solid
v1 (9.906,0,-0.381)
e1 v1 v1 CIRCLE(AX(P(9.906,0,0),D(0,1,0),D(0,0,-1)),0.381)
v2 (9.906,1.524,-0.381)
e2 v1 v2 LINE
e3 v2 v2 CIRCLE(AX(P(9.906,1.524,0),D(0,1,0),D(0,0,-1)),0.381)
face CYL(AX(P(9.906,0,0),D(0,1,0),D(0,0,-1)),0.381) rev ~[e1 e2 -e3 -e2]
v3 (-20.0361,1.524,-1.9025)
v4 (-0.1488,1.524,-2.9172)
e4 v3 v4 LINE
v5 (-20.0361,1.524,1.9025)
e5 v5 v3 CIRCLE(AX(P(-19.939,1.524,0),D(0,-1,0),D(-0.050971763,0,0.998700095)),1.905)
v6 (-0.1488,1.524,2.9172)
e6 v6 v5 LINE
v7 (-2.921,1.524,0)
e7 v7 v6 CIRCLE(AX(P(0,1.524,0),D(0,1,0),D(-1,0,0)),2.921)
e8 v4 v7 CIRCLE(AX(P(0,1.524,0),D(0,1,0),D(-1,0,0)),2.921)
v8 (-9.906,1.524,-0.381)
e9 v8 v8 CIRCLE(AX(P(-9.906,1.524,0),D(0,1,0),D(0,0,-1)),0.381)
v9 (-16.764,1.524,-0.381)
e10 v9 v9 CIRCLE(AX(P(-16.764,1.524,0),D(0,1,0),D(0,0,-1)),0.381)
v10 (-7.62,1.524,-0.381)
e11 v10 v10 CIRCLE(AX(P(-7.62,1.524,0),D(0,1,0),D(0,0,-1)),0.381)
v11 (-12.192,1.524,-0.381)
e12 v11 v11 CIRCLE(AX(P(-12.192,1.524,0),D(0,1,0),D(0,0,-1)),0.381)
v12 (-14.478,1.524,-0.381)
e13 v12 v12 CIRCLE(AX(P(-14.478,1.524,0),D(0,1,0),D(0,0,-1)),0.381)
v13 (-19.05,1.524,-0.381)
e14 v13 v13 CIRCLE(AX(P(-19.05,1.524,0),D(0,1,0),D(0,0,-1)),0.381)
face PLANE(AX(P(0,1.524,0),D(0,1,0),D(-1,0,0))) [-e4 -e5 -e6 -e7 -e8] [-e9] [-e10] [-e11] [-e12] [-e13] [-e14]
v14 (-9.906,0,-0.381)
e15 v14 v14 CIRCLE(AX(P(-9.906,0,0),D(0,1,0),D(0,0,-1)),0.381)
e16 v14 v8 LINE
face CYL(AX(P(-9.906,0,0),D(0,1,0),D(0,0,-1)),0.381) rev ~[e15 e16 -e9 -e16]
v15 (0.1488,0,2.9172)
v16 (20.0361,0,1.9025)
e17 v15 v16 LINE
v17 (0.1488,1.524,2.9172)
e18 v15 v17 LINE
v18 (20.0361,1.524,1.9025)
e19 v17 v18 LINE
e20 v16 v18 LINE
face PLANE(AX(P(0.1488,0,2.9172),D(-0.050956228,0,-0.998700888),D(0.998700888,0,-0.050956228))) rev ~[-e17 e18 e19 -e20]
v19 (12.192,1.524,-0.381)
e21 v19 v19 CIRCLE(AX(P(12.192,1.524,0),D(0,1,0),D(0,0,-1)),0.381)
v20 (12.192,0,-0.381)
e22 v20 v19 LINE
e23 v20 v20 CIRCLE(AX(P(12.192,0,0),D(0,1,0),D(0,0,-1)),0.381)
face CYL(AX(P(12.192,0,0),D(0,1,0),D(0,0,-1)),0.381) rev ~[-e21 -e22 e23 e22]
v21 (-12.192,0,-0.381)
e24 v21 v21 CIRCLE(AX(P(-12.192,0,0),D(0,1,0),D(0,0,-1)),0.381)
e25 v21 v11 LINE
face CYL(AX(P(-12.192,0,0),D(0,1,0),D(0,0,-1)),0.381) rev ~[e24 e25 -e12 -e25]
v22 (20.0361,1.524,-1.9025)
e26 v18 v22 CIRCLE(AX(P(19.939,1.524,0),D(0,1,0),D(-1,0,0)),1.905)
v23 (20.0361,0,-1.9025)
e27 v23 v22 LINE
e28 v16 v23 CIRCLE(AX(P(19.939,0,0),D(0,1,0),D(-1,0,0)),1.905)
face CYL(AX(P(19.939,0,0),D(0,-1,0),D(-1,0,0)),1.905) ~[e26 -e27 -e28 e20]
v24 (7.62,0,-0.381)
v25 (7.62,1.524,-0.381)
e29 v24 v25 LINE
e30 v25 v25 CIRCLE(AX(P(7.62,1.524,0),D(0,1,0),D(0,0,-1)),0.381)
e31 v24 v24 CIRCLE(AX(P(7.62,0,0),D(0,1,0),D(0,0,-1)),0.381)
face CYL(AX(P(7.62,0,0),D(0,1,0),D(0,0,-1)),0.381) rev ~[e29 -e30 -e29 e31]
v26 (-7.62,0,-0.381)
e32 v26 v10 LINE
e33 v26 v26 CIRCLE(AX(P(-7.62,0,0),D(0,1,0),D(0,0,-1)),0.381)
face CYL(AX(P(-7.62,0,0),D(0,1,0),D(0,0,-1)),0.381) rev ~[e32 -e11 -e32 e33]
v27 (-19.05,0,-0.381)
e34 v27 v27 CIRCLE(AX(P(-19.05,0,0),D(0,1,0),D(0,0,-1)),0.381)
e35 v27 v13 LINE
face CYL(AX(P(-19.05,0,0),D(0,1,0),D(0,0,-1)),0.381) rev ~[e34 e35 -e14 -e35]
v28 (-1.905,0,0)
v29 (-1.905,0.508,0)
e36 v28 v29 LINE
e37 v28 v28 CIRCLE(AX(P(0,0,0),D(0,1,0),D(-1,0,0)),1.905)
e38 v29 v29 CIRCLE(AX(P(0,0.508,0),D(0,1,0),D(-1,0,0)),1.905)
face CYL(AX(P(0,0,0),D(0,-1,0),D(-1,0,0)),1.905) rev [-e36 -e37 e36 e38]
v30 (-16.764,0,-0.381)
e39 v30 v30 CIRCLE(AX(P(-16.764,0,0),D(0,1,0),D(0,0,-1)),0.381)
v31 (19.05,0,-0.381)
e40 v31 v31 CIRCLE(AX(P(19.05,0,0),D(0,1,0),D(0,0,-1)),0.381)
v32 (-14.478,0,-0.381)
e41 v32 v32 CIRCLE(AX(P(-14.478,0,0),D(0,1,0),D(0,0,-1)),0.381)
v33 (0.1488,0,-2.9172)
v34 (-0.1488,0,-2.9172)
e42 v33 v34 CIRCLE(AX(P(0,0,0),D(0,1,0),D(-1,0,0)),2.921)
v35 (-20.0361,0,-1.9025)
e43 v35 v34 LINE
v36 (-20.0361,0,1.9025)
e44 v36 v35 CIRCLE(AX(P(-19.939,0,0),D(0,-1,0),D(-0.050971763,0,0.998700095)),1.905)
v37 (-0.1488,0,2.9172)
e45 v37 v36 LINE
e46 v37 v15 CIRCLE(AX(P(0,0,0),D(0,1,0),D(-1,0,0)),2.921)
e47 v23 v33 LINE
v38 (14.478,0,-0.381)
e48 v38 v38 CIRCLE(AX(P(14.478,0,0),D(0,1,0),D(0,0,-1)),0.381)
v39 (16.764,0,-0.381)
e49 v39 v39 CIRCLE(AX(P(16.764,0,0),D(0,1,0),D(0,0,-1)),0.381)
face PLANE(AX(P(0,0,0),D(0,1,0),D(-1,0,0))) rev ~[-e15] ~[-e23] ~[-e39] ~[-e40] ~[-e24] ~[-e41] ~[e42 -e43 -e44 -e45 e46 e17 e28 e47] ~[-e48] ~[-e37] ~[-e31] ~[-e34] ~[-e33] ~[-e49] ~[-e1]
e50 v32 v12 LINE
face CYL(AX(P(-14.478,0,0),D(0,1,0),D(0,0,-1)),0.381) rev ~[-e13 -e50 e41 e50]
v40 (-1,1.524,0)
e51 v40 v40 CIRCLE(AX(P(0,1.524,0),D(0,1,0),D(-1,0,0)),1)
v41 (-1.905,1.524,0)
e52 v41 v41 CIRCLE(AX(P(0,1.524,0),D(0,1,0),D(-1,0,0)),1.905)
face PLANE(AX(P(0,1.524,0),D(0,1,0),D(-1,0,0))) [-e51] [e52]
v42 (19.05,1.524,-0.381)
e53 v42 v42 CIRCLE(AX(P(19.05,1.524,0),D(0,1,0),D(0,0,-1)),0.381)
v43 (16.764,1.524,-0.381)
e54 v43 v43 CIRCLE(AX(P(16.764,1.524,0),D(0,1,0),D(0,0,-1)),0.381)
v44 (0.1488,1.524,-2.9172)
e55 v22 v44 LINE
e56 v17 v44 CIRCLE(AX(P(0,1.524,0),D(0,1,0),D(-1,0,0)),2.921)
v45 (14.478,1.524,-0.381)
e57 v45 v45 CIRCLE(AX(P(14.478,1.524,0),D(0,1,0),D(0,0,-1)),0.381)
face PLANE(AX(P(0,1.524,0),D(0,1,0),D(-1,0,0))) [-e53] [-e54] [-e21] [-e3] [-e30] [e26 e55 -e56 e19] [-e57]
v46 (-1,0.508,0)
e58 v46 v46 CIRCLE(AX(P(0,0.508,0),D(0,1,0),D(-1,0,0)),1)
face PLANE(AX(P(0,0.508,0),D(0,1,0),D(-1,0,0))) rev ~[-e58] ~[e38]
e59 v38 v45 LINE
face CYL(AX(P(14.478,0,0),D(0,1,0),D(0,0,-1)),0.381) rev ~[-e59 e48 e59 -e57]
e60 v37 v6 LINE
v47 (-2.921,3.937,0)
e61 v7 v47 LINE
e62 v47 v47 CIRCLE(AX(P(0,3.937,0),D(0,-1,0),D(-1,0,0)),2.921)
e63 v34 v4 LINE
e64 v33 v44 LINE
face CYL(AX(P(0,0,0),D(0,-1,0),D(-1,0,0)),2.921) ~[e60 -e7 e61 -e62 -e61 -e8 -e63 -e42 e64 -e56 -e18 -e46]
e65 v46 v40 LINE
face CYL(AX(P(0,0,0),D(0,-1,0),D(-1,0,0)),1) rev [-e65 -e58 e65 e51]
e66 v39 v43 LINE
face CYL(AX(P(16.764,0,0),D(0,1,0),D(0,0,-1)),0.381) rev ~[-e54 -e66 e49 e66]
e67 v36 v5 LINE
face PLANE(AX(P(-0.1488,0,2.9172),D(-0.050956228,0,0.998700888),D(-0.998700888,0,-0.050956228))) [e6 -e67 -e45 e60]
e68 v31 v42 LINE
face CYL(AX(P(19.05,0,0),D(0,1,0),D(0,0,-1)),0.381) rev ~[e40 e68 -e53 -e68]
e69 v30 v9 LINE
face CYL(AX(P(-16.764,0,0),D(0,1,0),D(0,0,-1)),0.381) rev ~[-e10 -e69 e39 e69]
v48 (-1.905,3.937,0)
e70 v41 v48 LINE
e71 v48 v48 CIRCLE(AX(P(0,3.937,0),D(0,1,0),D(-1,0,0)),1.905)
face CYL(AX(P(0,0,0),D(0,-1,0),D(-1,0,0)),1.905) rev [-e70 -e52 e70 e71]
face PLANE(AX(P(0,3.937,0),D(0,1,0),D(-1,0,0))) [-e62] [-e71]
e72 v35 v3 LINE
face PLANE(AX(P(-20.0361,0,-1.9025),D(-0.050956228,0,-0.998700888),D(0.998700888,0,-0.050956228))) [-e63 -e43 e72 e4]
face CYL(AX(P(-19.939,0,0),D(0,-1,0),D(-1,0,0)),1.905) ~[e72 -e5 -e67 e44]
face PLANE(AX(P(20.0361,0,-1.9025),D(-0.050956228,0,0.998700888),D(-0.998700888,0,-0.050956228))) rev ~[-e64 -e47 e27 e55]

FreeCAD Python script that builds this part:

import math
import FreeCAD as App
import Part
import Sketcher
Q = App.Units.Quantity

doc = App.newDocument("Part")
body = doc.addObject("PartDesign::Body", "Body")

# Sketch on XZ plane
sketch1 = body.newObject("Sketcher::SketchObject", "Sketch")
sketch1.AttachmentSupport = (doc.getObject("XZ_Plane"), [""])
sketch1.MapMode = "FlatFace"
sketch1.addGeometry(Part.ArcOfCircle(Part.Circle(App.Vector(0, 0, 0), App.Vector(0, 0, 1), 2.92), math.radians(-92.92), math.radians(-87.08)), False)
sketch1.addGeometry(Part.LineSegment(App.Vector(-0.15, -2.92, 0), App.Vector(-20.04, -1.9, 0)), False)
sketch1.addGeometry(Part.ArcOfCircle(Part.Circle(App.Vector(-19.94, 0, 0), App.Vector(0, 0, 1), 1.91), math.radians(93), math.radians(267)), False)
sketch1.addGeometry(Part.LineSegment(App.Vector(-20.04, 1.9, 0), App.Vector(-0.15, 2.92, 0)), False)
sketch1.addGeometry(Part.ArcOfCircle(Part.Circle(App.Vector(0, 0, 0), App.Vector(0, 0, 1), 2.92), math.radians(87.08), math.radians(92.92)), False)
sketch1.addGeometry(Part.LineSegment(App.Vector(0.15, 2.92, 0), App.Vector(20.04, 1.9, 0)), False)
sketch1.addGeometry(Part.ArcOfCircle(Part.Circle(App.Vector(19.94, 0, 0), App.Vector(0, 0, 1), 1.91), math.radians(-87), math.radians(87)), False)
sketch1.addGeometry(Part.LineSegment(App.Vector(20.04, -1.9, 0), App.Vector(0.15, -2.92, 0)), False)
sketch1.addGeometry(Part.Circle(App.Vector(0, 0, 0), App.Vector(0, 0, 1), 1), False)
sketch1.addConstraint(Sketcher.Constraint("Tangent", 0, 1, 1, 1))
sketch1.addConstraint(Sketcher.Constraint("Tangent", 1, 2, 2, 2))
sketch1.addConstraint(Sketcher.Constraint("Tangent", 2, 1, 3, 1))
sketch1.addConstraint(Sketcher.Constraint("Tangent", 3, 2, 4, 2))
sketch1.addConstraint(Sketcher.Constraint("Tangent", 4, 1, 5, 1))
sketch1.addConstraint(Sketcher.Constraint("Tangent", 5, 2, 6, 2))
sketch1.addConstraint(Sketcher.Constraint("Tangent", 6, 1, 7, 1))
sketch1.addConstraint(Sketcher.Constraint("Tangent", 7, 2, 0, 2))
sketch1.addConstraint(Sketcher.Constraint("Coincident", 0, 3, -1, 1))
sketch1.addConstraint(Sketcher.Constraint("Coincident", 4, 3, -1, 1))
sketch1.addConstraint(Sketcher.Constraint("Coincident", 8, 3, -1, 1))
sketch1.addConstraint(Sketcher.Constraint("Equal", 0, 4))
sketch1.addConstraint(Sketcher.Constraint("Equal", 2, 6))
sketch1.addConstraint(Sketcher.Constraint("Symmetric", 2, 3, 6, 3, -1, 1))
sketch1.addConstraint(Sketcher.Constraint("PointOnObject", 2, 3, -1))
sketch1.addConstraint(Sketcher.Constraint("Radius", 0, Q("0.115 in")))
sketch1.addConstraint(Sketcher.Constraint("Radius", 2, Q("0.075 in")))
sketch1.addConstraint(Sketcher.Constraint("Diameter", 8, 2.0))
sketch1.addConstraint(Sketcher.Constraint("Angle", 1, Q("177.0792 deg")))
pad1 = body.newObject("PartDesign::Pad", "Pad")
pad1.Profile = sketch1
pad1.Length = Q("0.06 in")
pad1.Reversed = True

# Sketch on XZ plane
sketch2 = body.newObject("Sketcher::SketchObject", "Sketch001")
sketch2.AttachmentSupport = (doc.getObject("XZ_Plane"), [""])
sketch2.MapMode = "FlatFace"
sketch2.addGeometry(Part.Circle(App.Vector(0, 0, 0), App.Vector(0, 0, 1), 2.9), False)
sketch2.addGeometry(Part.Circle(App.Vector(0, 0, 0), App.Vector(0, 0, 1), 1.9), False)
sketch2.addConstraint(Sketcher.Constraint("Coincident", 0, 3, -1, 1))
sketch2.addConstraint(Sketcher.Constraint("Coincident", 1, 3, -1, 1))
sketch2.addConstraint(Sketcher.Constraint("Diameter", 0, Q("0.23 in")))
sketch2.addConstraint(Sketcher.Constraint("Diameter", 1, Q("0.15 in")))
pad2 = body.newObject("PartDesign::Pad", "Pad001")
pad2.Profile = sketch2
pad2.Length = Q("0.155 in")
pad2.Reversed = True

# Sketch on XZ plane
sketch3 = body.newObject("Sketcher::SketchObject", "Sketch002")
sketch3.AttachmentSupport = (doc.getObject("XZ_Plane"), [""])
sketch3.MapMode = "FlatFace"
sketch3.addGeometry(Part.Circle(App.Vector(-19.05, 0, 0), App.Vector(0, 0, 1), 0.38), False)
sketch3.addGeometry(Part.Circle(App.Vector(-16.76, 0, 0), App.Vector(0, 0, 1), 0.38), False)
sketch3.addGeometry(Part.Circle(App.Vector(-14.48, 0, 0), App.Vector(0, 0, 1), 0.38), False)
sketch3.addGeometry(Part.Circle(App.Vector(-12.19, 0, 0), App.Vector(0, 0, 1), 0.38), False)
sketch3.addGeometry(Part.Circle(App.Vector(-9.91, 0, 0), App.Vector(0, 0, 1), 0.38), False)
sketch3.addGeometry(Part.Circle(App.Vector(-7.62, 0, 0), App.Vector(0, 0, 1), 0.38), False)
sketch3.addGeometry(Part.Circle(App.Vector(7.62, 0, 0), App.Vector(0, 0, 1), 0.38), False)
sketch3.addGeometry(Part.Circle(App.Vector(9.91, 0, 0), App.Vector(0, 0, 1), 0.38), False)
sketch3.addGeometry(Part.Circle(App.Vector(12.19, 0, 0), App.Vector(0, 0, 1), 0.38), False)
sketch3.addGeometry(Part.Circle(App.Vector(14.48, 0, 0), App.Vector(0, 0, 1), 0.38), False)
sketch3.addGeometry(Part.Circle(App.Vector(16.76, 0, 0), App.Vector(0, 0, 1), 0.38), False)
sketch3.addGeometry(Part.Circle(App.Vector(19.05, 0, 0), App.Vector(0, 0, 1), 0.38), False)
sketch3.addConstraint(Sketcher.Constraint("Equal", 0, 1))
sketch3.addConstraint(Sketcher.Constraint("Equal", 1, 2))
sketch3.addConstraint(Sketcher.Constraint("Equal", 2, 3))
sketch3.addConstraint(Sketcher.Constraint("Equal", 3, 4))
sketch3.addConstraint(Sketcher.Constraint("Equal", 4, 5))
sketch3.addConstraint(Sketcher.Constraint("Equal", 5, 6))
sketch3.addConstraint(Sketcher.Constraint("Equal", 6, 7))
sketch3.addConstraint(Sketcher.Constraint("Equal", 7, 8))
sketch3.addConstraint(Sketcher.Constraint("Equal", 8, 9))
sketch3.addConstraint(Sketcher.Constraint("Equal", 9, 10))
sketch3.addConstraint(Sketcher.Constraint("Equal", 10, 11))
sketch3.addConstraint(Sketcher.Constraint("Symmetric", 5, 3, 6, 3, -1, 1))
sketch3.addConstraint(Sketcher.Constraint("Symmetric", 4, 3, 7, 3, -1, 1))
sketch3.addConstraint(Sketcher.Constraint("Symmetric", 3, 3, 8, 3, -1, 1))
sketch3.addConstraint(Sketcher.Constraint("Symmetric", 2, 3, 9, 3, -1, 1))
sketch3.addConstraint(Sketcher.Constraint("Symmetric", 1, 3, 10, 3, -1, 1))
sketch3.addConstraint(Sketcher.Constraint("Symmetric", 0, 3, 11, 3, -1, 1))
sketch3.addConstraint(Sketcher.Constraint("PointOnObject", 0, 3, -1))
sketch3.addConstraint(Sketcher.Constraint("PointOnObject", 1, 3, -1))
sketch3.addConstraint(Sketcher.Constraint("PointOnObject", 2, 3, -1))
sketch3.addConstraint(Sketcher.Constraint("PointOnObject", 3, 3, -1))
sketch3.addConstraint(Sketcher.Constraint("PointOnObject", 4, 3, -1))
sketch3.addConstraint(Sketcher.Constraint("PointOnObject", 5, 3, -1))
sketch3.addConstraint(Sketcher.Constraint("Diameter", 0, Q("0.03 in")))
sketch3.addConstraint(Sketcher.Constraint("DistanceX", 5, 3, -1, 1, Q("0.3 in")))
sketch3.addConstraint(Sketcher.Constraint("DistanceX", 0, 3, -1, 1, Q("0.75 in")))
sketch3.addConstraint(Sketcher.Constraint("DistanceX", 1, 3, -1, 1, Q("0.66 in")))
sketch3.addConstraint(Sketcher.Constraint("DistanceX", 2, 3, -1, 1, Q("0.57 in")))
sketch3.addConstraint(Sketcher.Constraint("DistanceX", 3, 3, -1, 1, Q("0.48 in")))
sketch3.addConstraint(Sketcher.Constraint("DistanceX", 4, 3, -1, 1, Q("0.39 in")))
doc.recompute()
hole = body.newObject("PartDesign::Hole", "Hole")
hole.Profile = sketch3
hole.ThreadType = "None"
hole.Diameter = Q("0.03 in")
hole.DepthType = "ThroughAll"

# Sketch on XZ plane
sketch4 = body.newObject("Sketcher::SketchObject", "Sketch003")
sketch4.AttachmentSupport = (doc.getObject("XZ_Plane"), [""])
sketch4.MapMode = "FlatFace"
sketch4.addGeometry(Part.Circle(App.Vector(0, 0, 0), App.Vector(0, 0, 1), 1.9), False)
sketch4.addGeometry(Part.Circle(App.Vector(0, 0, 0), App.Vector(0, 0, 1), 1), False)
sketch4.addConstraint(Sketcher.Constraint("Coincident", 0, 3, -1, 1))
sketch4.addConstraint(Sketcher.Constraint("Coincident", 1, 3, -1, 1))
sketch4.addConstraint(Sketcher.Constraint("Diameter", 0, Q("0.15 in")))
sketch4.addConstraint(Sketcher.Constraint("Diameter", 1, 2.0))
pocket1 = body.newObject("PartDesign::Pocket", "Pocket")
pocket1.Profile = sketch4
pocket1.Length = Q("0.02 in")

doc.recompute()
